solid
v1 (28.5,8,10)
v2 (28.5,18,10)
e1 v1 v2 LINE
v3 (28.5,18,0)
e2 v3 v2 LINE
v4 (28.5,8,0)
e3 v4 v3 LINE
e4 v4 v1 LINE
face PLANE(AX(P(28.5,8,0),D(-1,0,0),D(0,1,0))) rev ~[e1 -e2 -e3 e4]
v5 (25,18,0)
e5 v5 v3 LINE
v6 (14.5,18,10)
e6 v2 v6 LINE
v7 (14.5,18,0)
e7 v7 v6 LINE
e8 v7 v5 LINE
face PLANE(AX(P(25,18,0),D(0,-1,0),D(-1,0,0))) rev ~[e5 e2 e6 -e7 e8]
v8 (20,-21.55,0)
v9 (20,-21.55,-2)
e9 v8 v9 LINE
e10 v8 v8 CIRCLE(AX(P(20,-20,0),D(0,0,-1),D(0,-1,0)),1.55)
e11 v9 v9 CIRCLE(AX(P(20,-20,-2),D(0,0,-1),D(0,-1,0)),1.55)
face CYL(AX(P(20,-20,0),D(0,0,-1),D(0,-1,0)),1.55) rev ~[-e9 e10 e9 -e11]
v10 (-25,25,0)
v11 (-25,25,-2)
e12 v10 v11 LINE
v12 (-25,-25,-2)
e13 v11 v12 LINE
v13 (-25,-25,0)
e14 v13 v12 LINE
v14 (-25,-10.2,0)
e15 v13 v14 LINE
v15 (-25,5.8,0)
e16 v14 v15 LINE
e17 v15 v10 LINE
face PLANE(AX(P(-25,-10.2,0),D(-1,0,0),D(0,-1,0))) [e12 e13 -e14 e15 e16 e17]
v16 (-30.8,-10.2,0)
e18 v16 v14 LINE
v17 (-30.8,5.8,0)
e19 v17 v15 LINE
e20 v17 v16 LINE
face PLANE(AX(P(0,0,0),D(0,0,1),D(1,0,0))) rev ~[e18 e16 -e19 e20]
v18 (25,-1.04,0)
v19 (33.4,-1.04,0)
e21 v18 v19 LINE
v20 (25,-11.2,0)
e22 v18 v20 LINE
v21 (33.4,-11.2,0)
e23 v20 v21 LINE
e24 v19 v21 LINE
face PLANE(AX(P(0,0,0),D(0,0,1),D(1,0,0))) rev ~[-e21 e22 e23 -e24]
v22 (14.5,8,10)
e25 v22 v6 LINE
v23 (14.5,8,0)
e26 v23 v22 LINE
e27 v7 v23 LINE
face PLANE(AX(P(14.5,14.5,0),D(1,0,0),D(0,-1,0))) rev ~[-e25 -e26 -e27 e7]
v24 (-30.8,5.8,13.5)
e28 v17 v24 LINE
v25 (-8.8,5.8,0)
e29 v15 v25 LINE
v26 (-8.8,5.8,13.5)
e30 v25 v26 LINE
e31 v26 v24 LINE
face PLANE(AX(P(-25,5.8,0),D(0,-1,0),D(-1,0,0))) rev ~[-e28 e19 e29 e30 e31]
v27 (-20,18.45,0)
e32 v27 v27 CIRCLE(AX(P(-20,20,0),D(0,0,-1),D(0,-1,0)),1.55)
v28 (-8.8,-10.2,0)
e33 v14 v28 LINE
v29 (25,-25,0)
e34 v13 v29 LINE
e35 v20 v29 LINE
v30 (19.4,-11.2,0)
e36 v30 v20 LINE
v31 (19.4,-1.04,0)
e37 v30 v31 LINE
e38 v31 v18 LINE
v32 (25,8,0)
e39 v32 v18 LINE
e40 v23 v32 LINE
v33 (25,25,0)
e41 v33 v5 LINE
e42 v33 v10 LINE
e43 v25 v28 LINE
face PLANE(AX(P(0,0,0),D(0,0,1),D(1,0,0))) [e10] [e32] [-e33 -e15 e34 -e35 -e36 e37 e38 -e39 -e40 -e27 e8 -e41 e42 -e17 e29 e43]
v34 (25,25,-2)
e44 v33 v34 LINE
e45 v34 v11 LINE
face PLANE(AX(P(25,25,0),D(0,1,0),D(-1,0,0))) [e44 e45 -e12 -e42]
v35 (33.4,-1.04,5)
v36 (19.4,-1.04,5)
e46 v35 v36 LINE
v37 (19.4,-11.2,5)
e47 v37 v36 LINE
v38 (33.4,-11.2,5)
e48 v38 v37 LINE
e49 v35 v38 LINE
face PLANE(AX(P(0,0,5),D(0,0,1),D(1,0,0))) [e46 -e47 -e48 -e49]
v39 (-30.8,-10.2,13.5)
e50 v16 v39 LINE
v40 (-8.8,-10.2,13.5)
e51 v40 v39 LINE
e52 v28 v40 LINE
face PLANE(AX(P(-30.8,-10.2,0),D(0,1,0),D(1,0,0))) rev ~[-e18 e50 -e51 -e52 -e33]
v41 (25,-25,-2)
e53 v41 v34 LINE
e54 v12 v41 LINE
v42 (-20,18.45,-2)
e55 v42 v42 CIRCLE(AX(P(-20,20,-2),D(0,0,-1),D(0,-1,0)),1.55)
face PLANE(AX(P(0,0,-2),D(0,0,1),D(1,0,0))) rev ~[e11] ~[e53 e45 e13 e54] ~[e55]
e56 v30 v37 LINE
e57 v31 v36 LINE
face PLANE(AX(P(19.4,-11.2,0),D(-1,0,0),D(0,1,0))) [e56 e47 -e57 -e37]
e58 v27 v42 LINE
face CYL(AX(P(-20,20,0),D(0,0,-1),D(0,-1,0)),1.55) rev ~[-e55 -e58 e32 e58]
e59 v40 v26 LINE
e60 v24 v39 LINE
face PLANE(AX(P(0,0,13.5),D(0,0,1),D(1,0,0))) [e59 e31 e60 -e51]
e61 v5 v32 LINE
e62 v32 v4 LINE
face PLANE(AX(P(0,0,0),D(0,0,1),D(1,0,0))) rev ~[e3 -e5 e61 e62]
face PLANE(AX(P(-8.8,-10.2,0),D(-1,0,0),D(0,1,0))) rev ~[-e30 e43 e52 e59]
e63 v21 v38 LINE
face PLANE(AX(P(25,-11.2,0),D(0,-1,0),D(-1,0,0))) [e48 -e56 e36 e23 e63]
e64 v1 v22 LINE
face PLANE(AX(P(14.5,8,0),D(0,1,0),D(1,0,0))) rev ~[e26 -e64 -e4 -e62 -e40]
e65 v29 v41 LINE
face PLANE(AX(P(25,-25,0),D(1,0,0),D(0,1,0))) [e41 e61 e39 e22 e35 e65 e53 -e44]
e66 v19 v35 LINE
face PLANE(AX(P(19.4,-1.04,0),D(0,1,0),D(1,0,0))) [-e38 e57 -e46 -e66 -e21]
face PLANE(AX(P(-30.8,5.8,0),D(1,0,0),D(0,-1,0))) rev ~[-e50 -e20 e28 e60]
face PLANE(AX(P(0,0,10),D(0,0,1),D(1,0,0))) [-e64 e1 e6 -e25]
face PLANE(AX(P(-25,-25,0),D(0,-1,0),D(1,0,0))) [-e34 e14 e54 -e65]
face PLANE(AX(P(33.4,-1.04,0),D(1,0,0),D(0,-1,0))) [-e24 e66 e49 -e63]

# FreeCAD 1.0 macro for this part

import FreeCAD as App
import Part
import Sketcher
from FreeCAD import Vector

doc = App.newDocument("Part")
body = doc.addObject("PartDesign::Body", "Body")

sketch1 = doc.addObject("Sketcher::SketchObject", "Sketch")
body.addObject(sketch1)
sketch1.AttachmentSupport = (doc.XY_Plane, [""])
sketch1.MapMode = "FlatFace"
sketch1.addGeometry([
    Part.LineSegment(Vector(-25, -25, 0), Vector(25, -25, 0)),
    Part.LineSegment(Vector(25, -25, 0), Vector(25, 25, 0)),
    Part.LineSegment(Vector(25, 25, 0), Vector(-25, 25, 0)),
    Part.LineSegment(Vector(-25, 25, 0), Vector(-25, -25, 0)),
], False)
sketch1.addConstraint([
    Sketcher.Constraint("Coincident", 0, 2, 1, 1),
    Sketcher.Constraint("Coincident", 1, 2, 2, 1),
    Sketcher.Constraint("Coincident", 2, 2, 3, 1),
    Sketcher.Constraint("Coincident", 3, 2, 0, 1),
    Sketcher.Constraint("Horizontal", 0),
    Sketcher.Constraint("Vertical", 1),
    Sketcher.Constraint("Horizontal", 2),
    Sketcher.Constraint("Vertical", 3),
    Sketcher.Constraint("Symmetric", 0, 2, 2, 2, -1, 1),
    Sketcher.Constraint("Equal", 2, 1),
    Sketcher.Constraint("DistanceX", 0, 1, 0, 2, 50.0),
])
pad1 = doc.addObject("PartDesign::Pad", "Pad")
body.addObject(pad1)
pad1.Profile = sketch1
pad1.Length = 2
pad1.Reversed = True

sketch2 = doc.addObject("Sketcher::SketchObject", "Sketch001")
body.addObject(sketch2)
sketch2.AttachmentSupport = (doc.XY_Plane, [""])
sketch2.MapMode = "FlatFace"
sketch2.addGeometry([
    Part.LineSegment(Vector(-31, -10, 0), Vector(-9, -10, 0)),
    Part.LineSegment(Vector(-9, -10, 0), Vector(-9, 6, 0)),
    Part.LineSegment(Vector(-9, 6, 0), Vector(-31, 6, 0)),
    Part.LineSegment(Vector(-31, 6, 0), Vector(-31, -10, 0)),
], False)
sketch2.addConstraint([
    Sketcher.Constraint("Coincident", 0, 2, 1, 1),
    Sketcher.Constraint("Coincident", 1, 2, 2, 1),
    Sketcher.Constraint("Coincident", 2, 2, 3, 1),
    Sketcher.Constraint("Coincident", 3, 2, 0, 1),
    Sketcher.Constraint("Horizontal", 0),
    Sketcher.Constraint("Vertical", 1),
    Sketcher.Constraint("Horizontal", 2),
    Sketcher.Constraint("Vertical", 3),
    Sketcher.Constraint("DistanceX", 0, 1, 0, 2, 22.0),
    Sketcher.Constraint("DistanceY", 1, 1, 1, 2, 16.0),
    Sketcher.Constraint("DistanceY", -1, 1, 1, 2, 5.8),
    Sketcher.Constraint("DistanceX", 0, 2, -1, 1, 8.8),
])
pad2 = doc.addObject("PartDesign::Pad", "Pad001")
body.addObject(pad2)
pad2.Profile = sketch2
pad2.Length = 13.5

sketch3 = doc.addObject("Sketcher::SketchObject", "Sketch002")
body.addObject(sketch3)
sketch3.AttachmentSupport = (doc.XY_Plane, [""])
sketch3.MapMode = "FlatFace"
sketch3.addGeometry([
    Part.LineSegment(Vector(19, -11, 0), Vector(33, -11, 0)),
    Part.LineSegment(Vector(33, -11, 0), Vector(33, -1, 0)),
    Part.LineSegment(Vector(33, -1, 0), Vector(19, -1, 0)),
    Part.LineSegment(Vector(19, -1, 0), Vector(19, -11, 0)),
], False)
sketch3.addConstraint([
    Sketcher.Constraint("Coincident", 0, 2, 1, 1),
    Sketcher.Constraint("Coincident", 1, 2, 2, 1),
    Sketcher.Constraint("Coincident", 2, 2, 3, 1),
    Sketcher.Constraint("Coincident", 3, 2, 0, 1),
    Sketcher.Constraint("Horizontal", 0),
    Sketcher.Constraint("Vertical", 1),
    Sketcher.Constraint("Horizontal", 2),
    Sketcher.Constraint("Vertical", 3),
    Sketcher.Constraint("DistanceX", 0, 1, 0, 2, 14.0),
    Sketcher.Constraint("DistanceY", 1, 1, 1, 2, 10.16),
    Sketcher.Constraint("DistanceX", -1, 1, 0, 2, 33.4),
    Sketcher.Constraint("DistanceY", 0, 2, -1, 1, 11.2),
])
pad3 = doc.addObject("PartDesign::Pad", "Pad002")
body.addObject(pad3)
pad3.Profile = sketch3
pad3.Length = 5

sketch4 = doc.addObject("Sketcher::SketchObject", "Sketch003")
body.addObject(sketch4)
sketch4.AttachmentSupport = (doc.XY_Plane, [""])
sketch4.MapMode = "FlatFace"
sketch4.addGeometry([
    Part.LineSegment(Vector(14, 8, 0), Vector(28, 8, 0)),
    Part.LineSegment(Vector(28, 8, 0), Vector(28, 18, 0)),
    Part.LineSegment(Vector(28, 18, 0), Vector(14, 18, 0)),
    Part.LineSegment(Vector(14, 18, 0), Vector(14, 8, 0)),
], False)
sketch4.addConstraint([
    Sketcher.Constraint("Coincident", 0, 2, 1, 1),
    Sketcher.Constraint("Coincident", 1, 2, 2, 1),
    Sketcher.Constraint("Coincident", 2, 2, 3, 1),
    Sketcher.Constraint("Coincident", 3, 2, 0, 1),
    Sketcher.Constraint("Horizontal", 0),
    Sketcher.Constraint("Vertical", 1),
    Sketcher.Constraint("Horizontal", 2),
    Sketcher.Constraint("Vertical", 3),
    Sketcher.Constraint("DistanceX", 0, 1, 0, 2, 14.0),
    Sketcher.Constraint("DistanceY", 1, 1, 1, 2, 10.0),
    Sketcher.Constraint("DistanceY", -1, 1, 1, 2, 18.0),
    Sketcher.Constraint("DistanceX", -1, 1, 0, 2, 28.5),
])
pad4 = doc.addObject("PartDesign::Pad", "Pad003")
body.addObject(pad4)
pad4.Profile = sketch4
pad4.Length = 10

sketch5 = doc.addObject("Sketcher::SketchObject", "Sketch004")
body.addObject(sketch5)
sketch5.AttachmentSupport = (doc.XY_Plane, [""])
sketch5.MapMode = "FlatFace"
sketch5.addGeometry([
    Part.Circle(Vector(-20, 20, 0), Vector(0, 0, 1), 1.6),
    Part.Circle(Vector(20, -20, 0), Vector(0, 0, 1), 1.6),
], False)
sketch5.addConstraint([
    Sketcher.Constraint("Equal", 0, 1),
    Sketcher.Constraint("Symmetric", 0, 3, 1, 3, -1, 1),
    Sketcher.Constraint("Diameter", 0, 3.1),
    Sketcher.Constraint("DistanceX", 0, 3, -1, 1, 20.0),
    Sketcher.Constraint("DistanceY", -1, 1, 0, 3, 20.0),
])
doc.recompute()
hole = doc.addObject("PartDesign::Hole", "Hole")
body.addObject(hole)
hole.Profile = sketch5
hole.ThreadType = "None"
hole.Diameter = 3.1
hole.DepthType = "ThroughAll"

doc.recompute()
